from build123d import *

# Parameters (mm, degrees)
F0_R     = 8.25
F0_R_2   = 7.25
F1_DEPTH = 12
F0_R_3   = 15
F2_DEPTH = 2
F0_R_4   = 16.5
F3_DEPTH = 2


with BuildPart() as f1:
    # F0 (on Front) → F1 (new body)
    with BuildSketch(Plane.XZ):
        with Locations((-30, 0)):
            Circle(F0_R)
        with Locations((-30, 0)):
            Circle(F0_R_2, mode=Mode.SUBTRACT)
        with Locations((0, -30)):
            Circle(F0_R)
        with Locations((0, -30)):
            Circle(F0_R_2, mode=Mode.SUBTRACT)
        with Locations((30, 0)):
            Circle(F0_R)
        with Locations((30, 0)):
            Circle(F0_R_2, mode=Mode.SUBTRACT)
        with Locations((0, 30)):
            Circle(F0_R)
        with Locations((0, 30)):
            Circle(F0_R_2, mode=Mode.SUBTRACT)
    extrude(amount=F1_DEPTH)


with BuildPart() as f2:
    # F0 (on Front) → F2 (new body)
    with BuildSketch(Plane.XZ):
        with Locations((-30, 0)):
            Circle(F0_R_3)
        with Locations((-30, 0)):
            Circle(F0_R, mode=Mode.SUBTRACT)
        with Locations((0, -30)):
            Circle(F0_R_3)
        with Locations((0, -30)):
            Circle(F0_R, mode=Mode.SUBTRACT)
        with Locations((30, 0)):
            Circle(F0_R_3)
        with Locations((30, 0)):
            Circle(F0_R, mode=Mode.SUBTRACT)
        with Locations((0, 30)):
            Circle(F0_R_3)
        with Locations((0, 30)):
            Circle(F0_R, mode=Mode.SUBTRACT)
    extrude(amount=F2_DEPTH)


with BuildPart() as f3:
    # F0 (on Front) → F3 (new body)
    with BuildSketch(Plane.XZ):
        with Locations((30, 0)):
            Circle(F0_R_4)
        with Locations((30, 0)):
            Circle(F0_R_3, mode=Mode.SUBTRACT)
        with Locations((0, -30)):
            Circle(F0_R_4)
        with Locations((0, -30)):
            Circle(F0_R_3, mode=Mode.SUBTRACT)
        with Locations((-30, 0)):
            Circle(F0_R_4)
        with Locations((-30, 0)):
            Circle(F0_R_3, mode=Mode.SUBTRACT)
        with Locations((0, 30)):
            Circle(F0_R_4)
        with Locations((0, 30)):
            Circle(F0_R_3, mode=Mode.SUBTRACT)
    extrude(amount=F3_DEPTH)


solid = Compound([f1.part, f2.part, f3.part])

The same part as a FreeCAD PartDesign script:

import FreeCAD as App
import Part
import Sketcher
Q = App.Units.Quantity

doc = App.newDocument("Part")
body = doc.addObject("PartDesign::Body", "Body")
body.AllowCompound = True

# Sketch on XZ plane
sketch1 = doc.addObject("Sketcher::SketchObject", "Sketch")
body.addObject(sketch1)
sketch1.AttachmentSupport = (doc.XZ_Plane, [""])
sketch1.MapMode = "FlatFace"
sketch1.addGeometry([
    Part.Circle(App.Vector(-30, 0, 0), App.Vector(0, 0, 1), 8),  # 0
    Part.Circle(App.Vector(-30, 0, 0), App.Vector(0, 0, 1), 7),  # 1
    Part.Circle(App.Vector(0, -30, 0), App.Vector(0, 0, 1), 8),  # 2
    Part.Circle(App.Vector(0, -30, 0), App.Vector(0, 0, 1), 7),  # 3
    Part.Circle(App.Vector(30, 0, 0), App.Vector(0, 0, 1), 8),  # 4
    Part.Circle(App.Vector(30, 0, 0), App.Vector(0, 0, 1), 7),  # 5
    Part.Circle(App.Vector(0, 30, 0), App.Vector(0, 0, 1), 8),  # 6
    Part.Circle(App.Vector(0, 30, 0), App.Vector(0, 0, 1), 7),  # 7
], False)
sketch1.addConstraint([
    Sketcher.Constraint("Coincident", 1, 3, 0, 3),
    Sketcher.Constraint("Coincident", 3, 3, 2, 3),
    Sketcher.Constraint("Coincident", 5, 3, 4, 3),
    Sketcher.Constraint("Coincident", 7, 3, 6, 3),
    Sketcher.Constraint("Equal", 0, 2),
    Sketcher.Constraint("Equal", 1, 3),
    Sketcher.Constraint("Equal", 2, 4),
    Sketcher.Constraint("Equal", 3, 5),
    Sketcher.Constraint("Equal", 4, 6),
    Sketcher.Constraint("Equal", 5, 7),
    Sketcher.Constraint("Symmetric", 0, 3, 4, 3, -1, 1),
    Sketcher.Constraint("Symmetric", 2, 3, 6, 3, -1, 1),
    Sketcher.Constraint("PointOnObject", 0, 3, -1),
    Sketcher.Constraint("PointOnObject", 2, 3, -2),
    Sketcher.Constraint("Diameter", 0, Q("16.5 mm")),
    Sketcher.Constraint("Diameter", 1, Q("14.5 mm")),
    Sketcher.Constraint("DistanceX", 0, 3, -1, 1, Q("30 mm")),
    Sketcher.Constraint("DistanceY", 2, 3, -1, 1, Q("30 mm")),
])
pad1 = doc.addObject("PartDesign::Pad", "Pad")
body.addObject(pad1)
pad1.Profile = sketch1
pad1.Length = 12
body2 = doc.addObject("PartDesign::Body", "Body001")
body2.AllowCompound = True

# Sketch on XZ plane
sketch2 = doc.addObject("Sketcher::SketchObject", "Sketch001")
body2.addObject(sketch2)
sketch2.AttachmentSupport = (doc.getObject("XZ_Plane001"), [""])
sketch2.MapMode = "FlatFace"
sketch2.addGeometry([
    Part.Circle(App.Vector(-30, 0, 0), App.Vector(0, 0, 1), 15),  # 0
    Part.Circle(App.Vector(-30, 0, 0), App.Vector(0, 0, 1), 8),  # 1
    Part.Circle(App.Vector(0, -30, 0), App.Vector(0, 0, 1), 15),  # 2
    Part.Circle(App.Vector(0, -30, 0), App.Vector(0, 0, 1), 8),  # 3
    Part.Circle(App.Vector(30, 0, 0), App.Vector(0, 0, 1), 15),  # 4
    Part.Circle(App.Vector(30, 0, 0), App.Vector(0, 0, 1), 8),  # 5
    Part.Circle(App.Vector(0, 30, 0), App.Vector(0, 0, 1), 15),  # 6
    Part.Circle(App.Vector(0, 30, 0), App.Vector(0, 0, 1), 8),  # 7
], False)
sketch2.addConstraint([
    Sketcher.Constraint("Coincident", 1, 3, 0, 3),
    Sketcher.Constraint("Coincident", 3, 3, 2, 3),
    Sketcher.Constraint("Coincident", 5, 3, 4, 3),
    Sketcher.Constraint("Coincident", 7, 3, 6, 3),
    Sketcher.Constraint("Equal", 0, 2),
    Sketcher.Constraint("Equal", 1, 3),
    Sketcher.Constraint("Equal", 2, 4),
    Sketcher.Constraint("Equal", 3, 5),
    Sketcher.Constraint("Equal", 4, 6),
    Sketcher.Constraint("Equal", 5, 7),
    Sketcher.Constraint("Symmetric", 0, 3, 4, 3, -1, 1),
    Sketcher.Constraint("Symmetric", 2, 3, 6, 3, -1, 1),
    Sketcher.Constraint("PointOnObject", 0, 3, -1),
    Sketcher.Constraint("PointOnObject", 2, 3, -2),
    Sketcher.Constraint("Diameter", 0, Q("30 mm")),
    Sketcher.Constraint("Diameter", 1, Q("16.5 mm")),
    Sketcher.Constraint("DistanceX", 0, 3, -1, 1, Q("30 mm")),
    Sketcher.Constraint("DistanceY", 2, 3, -1, 1, Q("30 mm")),
])
pad2 = doc.addObject("PartDesign::Pad", "Pad001")
body2.addObject(pad2)
pad2.Profile = sketch2
pad2.Length = 2
body3 = doc.addObject("PartDesign::Body", "Body002")
body3.AllowCompound = True

# Sketch on XZ plane
sketch3 = doc.addObject("Sketcher::SketchObject", "Sketch002")
body3.addObject(sketch3)
sketch3.AttachmentSupport = (doc.getObject("XZ_Plane002"), [""])
sketch3.MapMode = "FlatFace"
sketch3.addGeometry([
    Part.Circle(App.Vector(30, 0, 0), App.Vector(0, 0, 1), 16),  # 0
    Part.Circle(App.Vector(30, 0, 0), App.Vector(0, 0, 1), 15),  # 1
    Part.Circle(App.Vector(0, -30, 0), App.Vector(0, 0, 1), 16),  # 2
    Part.Circle(App.Vector(0, -30, 0), App.Vector(0, 0, 1), 15),  # 3
    Part.Circle(App.Vector(-30, 0, 0), App.Vector(0, 0, 1), 16),  # 4
    Part.Circle(App.Vector(-30, 0, 0), App.Vector(0, 0, 1), 15),  # 5
    Part.Circle(App.Vector(0, 30, 0), App.Vector(0, 0, 1), 16),  # 6
    Part.Circle(App.Vector(0, 30, 0), App.Vector(0, 0, 1), 15),  # 7
], False)
sketch3.addConstraint([
    Sketcher.Constraint("Coincident", 1, 3, 0, 3),
    Sketcher.Constraint("Coincident", 3, 3, 2, 3),
    Sketcher.Constraint("Coincident", 5, 3, 4, 3),
    Sketcher.Constraint("Coincident", 7, 3, 6, 3),
    Sketcher.Constraint("Equal", 0, 2),
    Sketcher.Constraint("Equal", 1, 3),
    Sketcher.Constraint("Equal", 2, 4),
    Sketcher.Constraint("Equal", 3, 5),
    Sketcher.Constraint("Equal", 4, 6),
    Sketcher.Constraint("Equal", 5, 7),
    Sketcher.Constraint("Symmetric", 0, 3, 4, 3, -1, 1),
    Sketcher.Constraint("Symmetric", 2, 3, 6, 3, -1, 1),
    Sketcher.Constraint("PointOnObject", 0, 3, -1),
    Sketcher.Constraint("PointOnObject", 2, 3, -2),
    Sketcher.Constraint("Diameter", 0, Q("33 mm")),
    Sketcher.Constraint("Diameter", 1, Q("30 mm")),
    Sketcher.Constraint("DistanceX", -1, 1, 0, 3, Q("30 mm")),
    Sketcher.Constraint("DistanceY", 2, 3, -1, 1, Q("30 mm")),
])
pad3 = doc.addObject("PartDesign::Pad", "Pad002")
body3.addObject(pad3)
pad3.Profile = sketch3
pad3.Length = 2

doc.recompute()
